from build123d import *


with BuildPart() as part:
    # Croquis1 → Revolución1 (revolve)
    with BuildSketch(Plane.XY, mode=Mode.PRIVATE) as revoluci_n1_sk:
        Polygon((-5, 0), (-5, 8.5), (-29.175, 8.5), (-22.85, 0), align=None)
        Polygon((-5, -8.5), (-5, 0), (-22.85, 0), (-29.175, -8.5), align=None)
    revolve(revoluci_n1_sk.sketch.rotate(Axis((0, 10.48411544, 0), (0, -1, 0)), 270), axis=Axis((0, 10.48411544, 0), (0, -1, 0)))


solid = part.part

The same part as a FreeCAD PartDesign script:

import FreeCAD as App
import Part
import Sketcher

V = App.Vector
Q = App.Units.Quantity

doc = App.newDocument("Part")
body = doc.addObject("PartDesign::Body", "Body")

# Sketch on XY plane
sketch1 = body.newObject("Sketcher::SketchObject", "Sketch")
sketch1.AttachmentSupport = (doc.getObject("XY_Plane"), [""])
sketch1.MapMode = "FlatFace"
sketch1.addGeometry([
    Part.LineSegment(V(-5, 8, 0), V(-29, 8, 0)),  # 0
    Part.LineSegment(V(-29, 8, 0), V(-23, 0, 0)),  # 1
    Part.LineSegment(V(-23, 0, 0), V(-29, -8, 0)),  # 2
    Part.LineSegment(V(-29, -8, 0), V(-5, -8, 0)),  # 3
    Part.LineSegment(V(-5, -8, 0), V(-5, 8, 0)),  # 4
], False)
sketch1.addConstraint([
    Sketcher.Constraint("Coincident", 0, 2, 1, 1),
    Sketcher.Constraint("Coincident", 1, 2, 2, 1),
    Sketcher.Constraint("Coincident", 2, 2, 3, 1),
    Sketcher.Constraint("Coincident", 3, 2, 4, 1),
    Sketcher.Constraint("Coincident", 4, 2, 0, 1),
    Sketcher.Constraint("Horizontal", 0),
    Sketcher.Constraint("Horizontal", 3),
    Sketcher.Constraint("Vertical", 4),
    Sketcher.Constraint("Symmetric", 0, 2, 2, 2, -1),
    Sketcher.Constraint("PointOnObject", 1, 2, -1),
    Sketcher.Constraint("DistanceY", 4, 1, 4, 2, Q("17 mm")),
    Sketcher.Constraint("DistanceX", 3, 2, -1, 1, Q("5 mm")),
    Sketcher.Constraint("DistanceX", 0, 2, 0, 1, Q("24.175 mm")),
    Sketcher.Constraint("DistanceX", 1, 2, -1, 1, Q("22.85 mm")),
])
revolution = body.newObject("PartDesign::Revolution", "Revolution")
revolution.Profile = sketch1
revolution.ReferenceAxis = (sketch1, ["V_Axis"])
revolution.Angle = 360

doc.recompute()
